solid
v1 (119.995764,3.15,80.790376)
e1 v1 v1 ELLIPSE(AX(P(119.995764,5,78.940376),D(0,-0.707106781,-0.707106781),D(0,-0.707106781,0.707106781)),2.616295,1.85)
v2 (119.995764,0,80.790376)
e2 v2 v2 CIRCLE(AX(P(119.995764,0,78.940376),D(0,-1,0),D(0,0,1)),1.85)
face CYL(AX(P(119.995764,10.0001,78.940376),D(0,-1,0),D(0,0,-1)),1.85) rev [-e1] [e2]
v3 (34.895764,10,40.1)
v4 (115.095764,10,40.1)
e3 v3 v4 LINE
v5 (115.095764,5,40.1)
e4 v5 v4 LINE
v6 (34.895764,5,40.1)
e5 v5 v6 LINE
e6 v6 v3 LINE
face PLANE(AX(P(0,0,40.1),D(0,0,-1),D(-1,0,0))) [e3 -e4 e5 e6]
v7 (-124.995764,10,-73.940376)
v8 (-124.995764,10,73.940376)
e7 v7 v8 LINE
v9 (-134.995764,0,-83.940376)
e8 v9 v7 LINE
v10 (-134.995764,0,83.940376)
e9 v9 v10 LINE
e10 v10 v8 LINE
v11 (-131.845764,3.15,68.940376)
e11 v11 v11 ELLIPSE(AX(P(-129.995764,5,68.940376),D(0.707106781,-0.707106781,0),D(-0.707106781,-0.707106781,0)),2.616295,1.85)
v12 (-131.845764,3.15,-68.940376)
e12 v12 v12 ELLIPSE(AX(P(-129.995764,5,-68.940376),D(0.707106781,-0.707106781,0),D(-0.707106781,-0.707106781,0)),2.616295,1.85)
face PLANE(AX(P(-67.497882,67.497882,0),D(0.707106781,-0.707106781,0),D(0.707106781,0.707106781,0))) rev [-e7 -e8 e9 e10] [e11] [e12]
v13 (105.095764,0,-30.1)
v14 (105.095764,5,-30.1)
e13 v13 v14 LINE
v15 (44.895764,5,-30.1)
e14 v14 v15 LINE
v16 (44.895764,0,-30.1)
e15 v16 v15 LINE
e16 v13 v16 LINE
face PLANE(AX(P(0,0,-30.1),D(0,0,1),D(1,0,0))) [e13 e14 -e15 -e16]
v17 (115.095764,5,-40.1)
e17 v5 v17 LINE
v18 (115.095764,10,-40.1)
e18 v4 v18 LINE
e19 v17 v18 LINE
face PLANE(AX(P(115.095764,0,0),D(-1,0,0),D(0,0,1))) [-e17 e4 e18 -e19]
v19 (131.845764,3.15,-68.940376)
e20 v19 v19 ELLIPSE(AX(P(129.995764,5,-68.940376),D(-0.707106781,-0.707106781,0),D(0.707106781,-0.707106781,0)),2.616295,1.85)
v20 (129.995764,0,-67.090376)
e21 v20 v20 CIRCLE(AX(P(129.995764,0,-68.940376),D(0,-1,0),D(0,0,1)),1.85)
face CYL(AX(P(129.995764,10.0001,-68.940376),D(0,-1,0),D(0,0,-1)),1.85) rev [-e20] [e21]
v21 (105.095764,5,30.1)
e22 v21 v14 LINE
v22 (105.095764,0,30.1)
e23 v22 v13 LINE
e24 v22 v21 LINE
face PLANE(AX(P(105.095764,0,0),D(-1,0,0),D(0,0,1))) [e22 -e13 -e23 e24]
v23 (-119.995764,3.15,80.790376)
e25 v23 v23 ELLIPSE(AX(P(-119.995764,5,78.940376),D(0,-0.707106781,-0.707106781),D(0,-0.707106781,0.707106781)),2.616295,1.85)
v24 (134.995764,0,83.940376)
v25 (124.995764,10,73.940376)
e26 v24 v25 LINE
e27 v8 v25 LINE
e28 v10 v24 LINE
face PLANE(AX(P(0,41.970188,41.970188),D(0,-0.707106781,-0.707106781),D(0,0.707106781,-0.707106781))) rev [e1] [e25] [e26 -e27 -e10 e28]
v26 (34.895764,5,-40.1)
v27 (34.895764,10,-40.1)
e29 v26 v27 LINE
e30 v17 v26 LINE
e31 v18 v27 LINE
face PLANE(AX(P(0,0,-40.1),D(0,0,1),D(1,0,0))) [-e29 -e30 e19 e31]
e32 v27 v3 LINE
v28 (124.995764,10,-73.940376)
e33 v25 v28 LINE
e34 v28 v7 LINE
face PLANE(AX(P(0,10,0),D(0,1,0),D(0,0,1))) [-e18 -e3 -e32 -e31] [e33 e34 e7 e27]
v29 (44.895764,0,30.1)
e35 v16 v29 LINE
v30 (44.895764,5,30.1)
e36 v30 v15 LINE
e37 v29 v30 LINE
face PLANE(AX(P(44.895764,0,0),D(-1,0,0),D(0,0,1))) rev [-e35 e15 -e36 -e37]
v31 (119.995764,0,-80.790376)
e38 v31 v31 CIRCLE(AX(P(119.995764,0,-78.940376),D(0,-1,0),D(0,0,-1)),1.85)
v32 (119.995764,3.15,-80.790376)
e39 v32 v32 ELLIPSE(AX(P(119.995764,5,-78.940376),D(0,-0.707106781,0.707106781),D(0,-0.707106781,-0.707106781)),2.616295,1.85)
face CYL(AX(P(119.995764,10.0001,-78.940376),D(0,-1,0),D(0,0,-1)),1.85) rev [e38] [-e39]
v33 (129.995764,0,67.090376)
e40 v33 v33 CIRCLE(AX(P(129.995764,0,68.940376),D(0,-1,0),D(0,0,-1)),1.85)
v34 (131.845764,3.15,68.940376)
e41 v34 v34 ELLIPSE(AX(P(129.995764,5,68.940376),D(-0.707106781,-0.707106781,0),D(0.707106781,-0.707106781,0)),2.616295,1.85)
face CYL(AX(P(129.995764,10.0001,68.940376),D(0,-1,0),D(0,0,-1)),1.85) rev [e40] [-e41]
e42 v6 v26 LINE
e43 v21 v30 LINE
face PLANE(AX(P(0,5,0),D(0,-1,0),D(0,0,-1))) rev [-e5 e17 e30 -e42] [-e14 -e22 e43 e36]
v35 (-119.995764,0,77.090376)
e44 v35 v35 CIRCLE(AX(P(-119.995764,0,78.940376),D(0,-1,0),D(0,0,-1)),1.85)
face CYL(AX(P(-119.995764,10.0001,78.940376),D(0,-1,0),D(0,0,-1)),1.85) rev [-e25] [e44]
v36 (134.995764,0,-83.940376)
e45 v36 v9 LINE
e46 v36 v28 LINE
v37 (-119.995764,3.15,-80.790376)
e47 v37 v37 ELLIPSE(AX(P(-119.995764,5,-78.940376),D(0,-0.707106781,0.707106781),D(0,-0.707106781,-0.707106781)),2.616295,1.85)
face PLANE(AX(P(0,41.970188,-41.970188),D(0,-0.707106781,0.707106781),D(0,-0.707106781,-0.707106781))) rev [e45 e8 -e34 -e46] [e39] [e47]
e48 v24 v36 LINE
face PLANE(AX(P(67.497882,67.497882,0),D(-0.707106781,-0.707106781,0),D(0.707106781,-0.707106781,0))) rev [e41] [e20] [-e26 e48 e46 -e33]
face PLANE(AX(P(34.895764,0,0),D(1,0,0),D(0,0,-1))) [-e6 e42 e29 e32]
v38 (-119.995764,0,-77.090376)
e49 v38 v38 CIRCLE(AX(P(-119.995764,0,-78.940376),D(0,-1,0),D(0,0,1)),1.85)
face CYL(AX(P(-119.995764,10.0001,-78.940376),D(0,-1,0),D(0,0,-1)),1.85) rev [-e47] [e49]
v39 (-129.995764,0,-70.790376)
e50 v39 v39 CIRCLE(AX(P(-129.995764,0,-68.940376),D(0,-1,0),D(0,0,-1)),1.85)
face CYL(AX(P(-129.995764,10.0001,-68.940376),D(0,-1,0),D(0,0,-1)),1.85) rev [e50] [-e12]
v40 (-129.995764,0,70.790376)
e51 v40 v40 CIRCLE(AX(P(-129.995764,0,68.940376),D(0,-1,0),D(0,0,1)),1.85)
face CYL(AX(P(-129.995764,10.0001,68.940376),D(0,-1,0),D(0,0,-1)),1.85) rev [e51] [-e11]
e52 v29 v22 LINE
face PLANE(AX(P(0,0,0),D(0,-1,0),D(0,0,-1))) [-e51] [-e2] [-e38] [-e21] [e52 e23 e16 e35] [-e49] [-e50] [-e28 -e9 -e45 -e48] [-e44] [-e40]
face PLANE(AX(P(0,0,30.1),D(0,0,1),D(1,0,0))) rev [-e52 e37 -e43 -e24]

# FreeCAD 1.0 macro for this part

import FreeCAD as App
import Part
import Sketcher

V = App.Vector
Q = App.Units.Quantity

doc = App.newDocument("Part")
body = doc.addObject("PartDesign::Body", "Body")

# Sketch on XZ plane
sketch1 = doc.addObject("Sketcher::SketchObject", "Sketch")
body.addObject(sketch1)
sketch1.AttachmentSupport = (doc.XZ_Plane, [""])
sketch1.MapMode = "FlatFace"
sketch1.addGeometry(Part.LineSegment(V(-135, 84, 0), V(135, 84, 0)), False)
sketch1.addGeometry(Part.LineSegment(V(135, 84, 0), V(135, -84, 0)), False)
sketch1.addGeometry(Part.LineSegment(V(135, -84, 0), V(-135, -84, 0)), False)
sketch1.addGeometry(Part.LineSegment(V(-135, -84, 0), V(-135, 84, 0)), False)
sketch1.addConstraint(Sketcher.Constraint("Coincident", 0, 2, 1, 1))
sketch1.addConstraint(Sketcher.Constraint("Coincident", 1, 2, 2, 1))
sketch1.addConstraint(Sketcher.Constraint("Coincident", 2, 2, 3, 1))
sketch1.addConstraint(Sketcher.Constraint("Coincident", 3, 2, 0, 1))
sketch1.addConstraint(Sketcher.Constraint("Horizontal", 0))
sketch1.addConstraint(Sketcher.Constraint("Vertical", 1))
sketch1.addConstraint(Sketcher.Constraint("Horizontal", 2))
sketch1.addConstraint(Sketcher.Constraint("Vertical", 3))
sketch1.addConstraint(Sketcher.Constraint("Symmetric", 0, 2, 2, 2, -1, 1))
sketch1.addConstraint(Sketcher.Constraint("DistanceX", 0, 1, 0, 2, Q("269.991529 mm")))
sketch1.addConstraint(Sketcher.Constraint("DistanceY", 1, 2, 1, 1, Q("167.880752 mm")))

# Sketch on XZ plane
sketch2 = doc.addObject("Sketcher::SketchObject", "Sketch001")
body.addObject(sketch2)
sketch2.AttachmentSupport = (doc.XZ_Plane, [""])
sketch2.MapMode = "FlatFace"
sketch2.AttachmentOffset = App.Placement(V(0, 0, -10), App.Rotation())
sketch2.addGeometry(Part.LineSegment(V(-125, -74, 0), V(-125, 74, 0)), False)
sketch2.addGeometry(Part.LineSegment(V(-125, 74, 0), V(125, 74, 0)), False)
sketch2.addGeometry(Part.LineSegment(V(125, 74, 0), V(125, -74, 0)), False)
sketch2.addGeometry(Part.LineSegment(V(125, -74, 0), V(-125, -74, 0)), False)
sketch2.addConstraint(Sketcher.Constraint("Coincident", 0, 2, 1, 1))
sketch2.addConstraint(Sketcher.Constraint("Coincident", 1, 2, 2, 1))
sketch2.addConstraint(Sketcher.Constraint("Coincident", 2, 2, 3, 1))
sketch2.addConstraint(Sketcher.Constraint("Coincident", 3, 2, 0, 1))
sketch2.addConstraint(Sketcher.Constraint("Vertical", 0))
sketch2.addConstraint(Sketcher.Constraint("Horizontal", 1))
sketch2.addConstraint(Sketcher.Constraint("Vertical", 2))
sketch2.addConstraint(Sketcher.Constraint("Horizontal", 3))
sketch2.addConstraint(Sketcher.Constraint("Symmetric", 0, 2, 2, 2, -1, 1))
sketch2.addConstraint(Sketcher.Constraint("DistanceX", 1, 1, 1, 2, Q("249.991529 mm")))
sketch2.addConstraint(Sketcher.Constraint("DistanceY", 0, 1, 0, 2, Q("147.880752 mm")))

additiveloft = doc.addObject("PartDesign::AdditiveLoft", "AdditiveLoft")
body.addObject(additiveloft)
additiveloft.Profile = sketch1
additiveloft.Sections = [sketch2]

# Sketch on XZ plane
sketch3 = doc.addObject("Sketcher::SketchObject", "Sketch002")
body.addObject(sketch3)
sketch3.AttachmentSupport = (doc.XZ_Plane, [""])
sketch3.MapMode = "FlatFace"
sketch3.addGeometry(Part.Circle(V(-120, 78.9, 0), V(0, 0, 1), 1.9), False)
sketch3.addGeometry(Part.Circle(V(-130, 68.9, 0), V(0, 0, 1), 1.9), False)
sketch3.addGeometry(Part.Circle(V(130, 68.9, 0), V(0, 0, 1), 1.9), False)
sketch3.addGeometry(Part.Circle(V(120, 78.9, 0), V(0, 0, 1), 1.9), False)
sketch3.addGeometry(Part.Circle(V(130, -68.9, 0), V(0, 0, 1), 1.9), False)
sketch3.addGeometry(Part.Circle(V(120, -78.9, 0), V(0, 0, 1), 1.9), False)
sketch3.addGeometry(Part.Circle(V(-130, -68.9, 0), V(0, 0, 1), 1.9), False)
sketch3.addGeometry(Part.Circle(V(-120, -78.9, 0), V(0, 0, 1), 1.9), False)
sketch3.addConstraint(Sketcher.Constraint("Equal", 0, 1))
sketch3.addConstraint(Sketcher.Constraint("Equal", 1, 2))
sketch3.addConstraint(Sketcher.Constraint("Equal", 2, 3))
sketch3.addConstraint(Sketcher.Constraint("Equal", 3, 4))
sketch3.addConstraint(Sketcher.Constraint("Equal", 4, 5))
sketch3.addConstraint(Sketcher.Constraint("Equal", 5, 6))
sketch3.addConstraint(Sketcher.Constraint("Equal", 6, 7))
sketch3.addConstraint(Sketcher.Constraint("Symmetric", 1, 3, 4, 3, -1, 1))
sketch3.addConstraint(Sketcher.Constraint("Symmetric", 0, 3, 5, 3, -1, 1))
sketch3.addConstraint(Sketcher.Constraint("Symmetric", 2, 3, 6, 3, -1, 1))
sketch3.addConstraint(Sketcher.Constraint("Symmetric", 3, 3, 7, 3, -1, 1))
sketch3.addConstraint(Sketcher.Constraint("Symmetric", 1, 3, 2, 3, -2))
sketch3.addConstraint(Sketcher.Constraint("Symmetric", 0, 3, 3, 3, -2))
sketch3.addConstraint(Sketcher.Constraint("Diameter", 0, Q("3.7 mm")))
sketch3.addConstraint(Sketcher.Constraint("DistanceX", 1, 3, 0, 3, Q("10 mm")))
sketch3.addConstraint(Sketcher.Constraint("DistanceY", 1, 3, 0, 3, Q("10 mm")))
sketch3.addConstraint(Sketcher.Constraint("DistanceX", 0, 3, 2, 3, Q("249.991529 mm")))
sketch3.addConstraint(Sketcher.Constraint("DistanceY", -1, 1, 0, 3, Q("78.940376 mm")))
pocket1 = doc.addObject("PartDesign::Pocket", "Pocket")
body.addObject(pocket1)
pocket1.Profile = sketch3
pocket1.Type = "ThroughAll"

# Sketch on XZ plane
sketch4 = doc.addObject("Sketcher::SketchObject", "Sketch003")
body.addObject(sketch4)
sketch4.AttachmentSupport = (doc.XZ_Plane, [""])
sketch4.MapMode = "FlatFace"
sketch4.addGeometry(Part.LineSegment(V(105, 30, 0), V(105, -30, 0)), False)
sketch4.addGeometry(Part.LineSegment(V(105, -30, 0), V(45, -30, 0)), False)
sketch4.addGeometry(Part.LineSegment(V(45, -30, 0), V(45, 30, 0)), False)
sketch4.addGeometry(Part.LineSegment(V(45, 30, 0), V(105, 30, 0)), False)
sketch4.addConstraint(Sketcher.Constraint("Coincident", 0, 2, 1, 1))
sketch4.addConstraint(Sketcher.Constraint("Coincident", 1, 2, 2, 1))
sketch4.addConstraint(Sketcher.Constraint("Coincident", 2, 2, 3, 1))
sketch4.addConstraint(Sketcher.Constraint("Coincident", 3, 2, 0, 1))
sketch4.addConstraint(Sketcher.Constraint("Vertical", 0))
sketch4.addConstraint(Sketcher.Constraint("Horizontal", 1))
sketch4.addConstraint(Sketcher.Constraint("Vertical", 2))
sketch4.addConstraint(Sketcher.Constraint("Horizontal", 3))
sketch4.addConstraint(Sketcher.Constraint("Equal", 3, 0))
sketch4.addConstraint(Sketcher.Constraint("DistanceX", 1, 2, 1, 1, Q("60.2 mm")))
sketch4.addConstraint(Sketcher.Constraint("DistanceY", 0, 2, -1, 1, Q("30.1 mm")))
sketch4.addConstraint(Sketcher.Constraint("DistanceX", -1, 1, 0, 2, Q("105.095764 mm")))

# Sketch on XZ plane
sketch5 = doc.addObject("Sketcher::SketchObject", "Sketch004")
body.addObject(sketch5)
sketch5.AttachmentSupport = (doc.XZ_Plane, [""])
sketch5.MapMode = "FlatFace"
sketch5.AttachmentOffset = App.Placement(V(0, 0, -5), App.Rotation())
sketch5.addGeometry(Part.LineSegment(V(45, 30, 0), V(105, 30, 0)), False)
sketch5.addGeometry(Part.LineSegment(V(105, 30, 0), V(105, -30, 0)), False)
sketch5.addGeometry(Part.LineSegment(V(105, -30, 0), V(45, -30, 0)), False)
sketch5.addGeometry(Part.LineSegment(V(45, -30, 0), V(45, 30, 0)), False)
sketch5.addConstraint(Sketcher.Constraint("Coincident", 0, 2, 1, 1))
sketch5.addConstraint(Sketcher.Constraint("Coincident", 1, 2, 2, 1))
sketch5.addConstraint(Sketcher.Constraint("Coincident", 2, 2, 3, 1))
sketch5.addConstraint(Sketcher.Constraint("Coincident", 3, 2, 0, 1))
sketch5.addConstraint(Sketcher.Constraint("Horizontal", 0))
sketch5.addConstraint(Sketcher.Constraint("Vertical", 1))
sketch5.addConstraint(Sketcher.Constraint("Horizontal", 2))
sketch5.addConstraint(Sketcher.Constraint("Vertical", 3))
sketch5.addConstraint(Sketcher.Constraint("Equal", 2, 1))
sketch5.addConstraint(Sketcher.Constraint("DistanceX", 0, 1, 0, 2, Q("60.2 mm")))
sketch5.addConstraint(Sketcher.Constraint("DistanceY", -1, 1, 0, 2, Q("30.1 mm")))
sketch5.addConstraint(Sketcher.Constraint("DistanceX", -1, 1, 0, 2, Q("105.095764 mm")))

subtractiveloft = doc.addObject("PartDesign::SubtractiveLoft", "SubtractiveLoft")
body.addObject(subtractiveloft)
subtractiveloft.Profile = sketch4
subtractiveloft.Sections = [sketch5]

# Sketch on XZ plane
sketch6 = doc.addObject("Sketcher::SketchObject", "Sketch005")
body.addObject(sketch6)
sketch6.AttachmentSupport = (doc.XZ_Plane, [""])
sketch6.MapMode = "FlatFace"
sketch6.AttachmentOffset = App.Placement(V(0, 0, -5), App.Rotation())
sketch6.addGeometry(Part.LineSegment(V(115, -40, 0), V(35, -40, 0)), False)
sketch6.addGeometry(Part.LineSegment(V(35, -40, 0), V(35, 40, 0)), False)
sketch6.addGeometry(Part.LineSegment(V(35, 40, 0), V(115, 40, 0)), False)
sketch6.addGeometry(Part.LineSegment(V(115, 40, 0), V(115, -40, 0)), False)
sketch6.addConstraint(Sketcher.Constraint("Coincident", 0, 2, 1, 1))
sketch6.addConstraint(Sketcher.Constraint("Coincident", 1, 2, 2, 1))
sketch6.addConstraint(Sketcher.Constraint("Coincident", 2, 2, 3, 1))
sketch6.addConstraint(Sketcher.Constraint("Coincident", 3, 2, 0, 1))
sketch6.addConstraint(Sketcher.Constraint("Horizontal", 0))
sketch6.addConstraint(Sketcher.Constraint("Vertical", 1))
sketch6.addConstraint(Sketcher.Constraint("Horizontal", 2))
sketch6.addConstraint(Sketcher.Constraint("Vertical", 3))
sketch6.addConstraint(Sketcher.Constraint("Equal", 2, 1))
sketch6.addConstraint(Sketcher.Constraint("DistanceX", 0, 2, 0, 1, Q("80.2 mm")))
sketch6.addConstraint(Sketcher.Constraint("DistanceY", 0, 2, -1, 1, Q("40.1 mm")))
sketch6.addConstraint(Sketcher.Constraint("DistanceX", -1, 1, 0, 2, Q("34.895764 mm")))

# Sketch on XZ plane
sketch7 = doc.addObject("Sketcher::SketchObject", "Sketch006")
body.addObject(sketch7)
sketch7.AttachmentSupport = (doc.XZ_Plane, [""])
sketch7.MapMode = "FlatFace"
sketch7.AttachmentOffset = App.Placement(V(0, 0, -10), App.Rotation())
sketch7.addGeometry(Part.LineSegment(V(35, 40, 0), V(115, 40, 0)), False)
sketch7.addGeometry(Part.LineSegment(V(115, 40, 0), V(115, -40, 0)), False)
sketch7.addGeometry(Part.LineSegment(V(115, -40, 0), V(35, -40, 0)), False)
sketch7.addGeometry(Part.LineSegment(V(35, -40, 0), V(35, 40, 0)), False)
sketch7.addConstraint(Sketcher.Constraint("Coincident", 0, 2, 1, 1))
sketch7.addConstraint(Sketcher.Constraint("Coincident", 1, 2, 2, 1))
sketch7.addConstraint(Sketcher.Constraint("Coincident", 2, 2, 3, 1))
sketch7.addConstraint(Sketcher.Constraint("Coincident", 3, 2, 0, 1))
sketch7.addConstraint(Sketcher.Constraint("Horizontal", 0))
sketch7.addConstraint(Sketcher.Constraint("Vertical", 1))
sketch7.addConstraint(Sketcher.Constraint("Horizontal", 2))
sketch7.addConstraint(Sketcher.Constraint("Vertical", 3))
sketch7.addConstraint(Sketcher.Constraint("Equal", 2, 1))
sketch7.addConstraint(Sketcher.Constraint("DistanceX", 0, 1, 0, 2, Q("80.2 mm")))
sketch7.addConstraint(Sketcher.Constraint("DistanceY", -1, 1, 0, 2, Q("40.1 mm")))
sketch7.addConstraint(Sketcher.Constraint("DistanceX", -1, 1, 0, 2, Q("115.095764 mm")))

subtractiveloft2 = doc.addObject("PartDesign::SubtractiveLoft", "SubtractiveLoft001")
body.addObject(subtractiveloft2)
subtractiveloft2.Profile = sketch6
subtractiveloft2.Sections = [sketch7]

doc.recompute()
